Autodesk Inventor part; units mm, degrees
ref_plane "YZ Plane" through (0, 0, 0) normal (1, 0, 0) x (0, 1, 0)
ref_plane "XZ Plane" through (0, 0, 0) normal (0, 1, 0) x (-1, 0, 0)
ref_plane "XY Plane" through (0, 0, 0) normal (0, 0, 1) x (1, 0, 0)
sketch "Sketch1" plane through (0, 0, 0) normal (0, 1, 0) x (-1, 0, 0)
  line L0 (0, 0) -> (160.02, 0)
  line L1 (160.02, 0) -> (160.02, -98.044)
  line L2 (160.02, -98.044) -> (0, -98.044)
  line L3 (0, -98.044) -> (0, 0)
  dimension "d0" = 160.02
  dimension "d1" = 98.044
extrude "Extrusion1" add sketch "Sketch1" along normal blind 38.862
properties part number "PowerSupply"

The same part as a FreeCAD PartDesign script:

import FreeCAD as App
import Part
import Sketcher

V = App.Vector
Q = App.Units.Quantity

doc = App.newDocument("Part")
body = doc.addObject("PartDesign::Body", "Body")

# Sketch on XZ plane
sketch1 = body.newObject("Sketcher::SketchObject", "Sketch")
sketch1.AttachmentSupport = (doc.getObject("XZ_Plane"), [""])
sketch1.MapMode = "FlatFace"
sketch1.addGeometry(Part.LineSegment(V(-160, 0, 0), V(0, 0, 0)), False)
sketch1.addGeometry(Part.LineSegment(V(0, 0, 0), V(0, -98, 0)), False)
sketch1.addGeometry(Part.LineSegment(V(0, -98, 0), V(-160, -98, 0)), False)
sketch1.addGeometry(Part.LineSegment(V(-160, -98, 0), V(-160, 0, 0)), False)
sketch1.addConstraint(Sketcher.Constraint("Coincident", 0, 2, 1, 1))
sketch1.addConstraint(Sketcher.Constraint("Coincident", 1, 2, 2, 1))
sketch1.addConstraint(Sketcher.Constraint("Coincident", 2, 2, 3, 1))
sketch1.addConstraint(Sketcher.Constraint("Coincident", 3, 2, 0, 1))
sketch1.addConstraint(Sketcher.Constraint("Horizontal", 0))
sketch1.addConstraint(Sketcher.Constraint("Vertical", 1))
sketch1.addConstraint(Sketcher.Constraint("Horizontal", 2))
sketch1.addConstraint(Sketcher.Constraint("Vertical", 3))
sketch1.addConstraint(Sketcher.Constraint("Coincident", 0, 2, -1, 1))
sketch1.addConstraint(Sketcher.Constraint("DistanceX", 0, 1, 0, 2, Q("6.3 in")))
sketch1.addConstraint(Sketcher.Constraint("DistanceY", 1, 2, 1, 1, Q("3.86 in")))
pad1 = body.newObject("PartDesign::Pad", "Pad")
pad1.Profile = sketch1
pad1.Length = Q("1.53 in")
pad1.Reversed = True

doc.recompute()
